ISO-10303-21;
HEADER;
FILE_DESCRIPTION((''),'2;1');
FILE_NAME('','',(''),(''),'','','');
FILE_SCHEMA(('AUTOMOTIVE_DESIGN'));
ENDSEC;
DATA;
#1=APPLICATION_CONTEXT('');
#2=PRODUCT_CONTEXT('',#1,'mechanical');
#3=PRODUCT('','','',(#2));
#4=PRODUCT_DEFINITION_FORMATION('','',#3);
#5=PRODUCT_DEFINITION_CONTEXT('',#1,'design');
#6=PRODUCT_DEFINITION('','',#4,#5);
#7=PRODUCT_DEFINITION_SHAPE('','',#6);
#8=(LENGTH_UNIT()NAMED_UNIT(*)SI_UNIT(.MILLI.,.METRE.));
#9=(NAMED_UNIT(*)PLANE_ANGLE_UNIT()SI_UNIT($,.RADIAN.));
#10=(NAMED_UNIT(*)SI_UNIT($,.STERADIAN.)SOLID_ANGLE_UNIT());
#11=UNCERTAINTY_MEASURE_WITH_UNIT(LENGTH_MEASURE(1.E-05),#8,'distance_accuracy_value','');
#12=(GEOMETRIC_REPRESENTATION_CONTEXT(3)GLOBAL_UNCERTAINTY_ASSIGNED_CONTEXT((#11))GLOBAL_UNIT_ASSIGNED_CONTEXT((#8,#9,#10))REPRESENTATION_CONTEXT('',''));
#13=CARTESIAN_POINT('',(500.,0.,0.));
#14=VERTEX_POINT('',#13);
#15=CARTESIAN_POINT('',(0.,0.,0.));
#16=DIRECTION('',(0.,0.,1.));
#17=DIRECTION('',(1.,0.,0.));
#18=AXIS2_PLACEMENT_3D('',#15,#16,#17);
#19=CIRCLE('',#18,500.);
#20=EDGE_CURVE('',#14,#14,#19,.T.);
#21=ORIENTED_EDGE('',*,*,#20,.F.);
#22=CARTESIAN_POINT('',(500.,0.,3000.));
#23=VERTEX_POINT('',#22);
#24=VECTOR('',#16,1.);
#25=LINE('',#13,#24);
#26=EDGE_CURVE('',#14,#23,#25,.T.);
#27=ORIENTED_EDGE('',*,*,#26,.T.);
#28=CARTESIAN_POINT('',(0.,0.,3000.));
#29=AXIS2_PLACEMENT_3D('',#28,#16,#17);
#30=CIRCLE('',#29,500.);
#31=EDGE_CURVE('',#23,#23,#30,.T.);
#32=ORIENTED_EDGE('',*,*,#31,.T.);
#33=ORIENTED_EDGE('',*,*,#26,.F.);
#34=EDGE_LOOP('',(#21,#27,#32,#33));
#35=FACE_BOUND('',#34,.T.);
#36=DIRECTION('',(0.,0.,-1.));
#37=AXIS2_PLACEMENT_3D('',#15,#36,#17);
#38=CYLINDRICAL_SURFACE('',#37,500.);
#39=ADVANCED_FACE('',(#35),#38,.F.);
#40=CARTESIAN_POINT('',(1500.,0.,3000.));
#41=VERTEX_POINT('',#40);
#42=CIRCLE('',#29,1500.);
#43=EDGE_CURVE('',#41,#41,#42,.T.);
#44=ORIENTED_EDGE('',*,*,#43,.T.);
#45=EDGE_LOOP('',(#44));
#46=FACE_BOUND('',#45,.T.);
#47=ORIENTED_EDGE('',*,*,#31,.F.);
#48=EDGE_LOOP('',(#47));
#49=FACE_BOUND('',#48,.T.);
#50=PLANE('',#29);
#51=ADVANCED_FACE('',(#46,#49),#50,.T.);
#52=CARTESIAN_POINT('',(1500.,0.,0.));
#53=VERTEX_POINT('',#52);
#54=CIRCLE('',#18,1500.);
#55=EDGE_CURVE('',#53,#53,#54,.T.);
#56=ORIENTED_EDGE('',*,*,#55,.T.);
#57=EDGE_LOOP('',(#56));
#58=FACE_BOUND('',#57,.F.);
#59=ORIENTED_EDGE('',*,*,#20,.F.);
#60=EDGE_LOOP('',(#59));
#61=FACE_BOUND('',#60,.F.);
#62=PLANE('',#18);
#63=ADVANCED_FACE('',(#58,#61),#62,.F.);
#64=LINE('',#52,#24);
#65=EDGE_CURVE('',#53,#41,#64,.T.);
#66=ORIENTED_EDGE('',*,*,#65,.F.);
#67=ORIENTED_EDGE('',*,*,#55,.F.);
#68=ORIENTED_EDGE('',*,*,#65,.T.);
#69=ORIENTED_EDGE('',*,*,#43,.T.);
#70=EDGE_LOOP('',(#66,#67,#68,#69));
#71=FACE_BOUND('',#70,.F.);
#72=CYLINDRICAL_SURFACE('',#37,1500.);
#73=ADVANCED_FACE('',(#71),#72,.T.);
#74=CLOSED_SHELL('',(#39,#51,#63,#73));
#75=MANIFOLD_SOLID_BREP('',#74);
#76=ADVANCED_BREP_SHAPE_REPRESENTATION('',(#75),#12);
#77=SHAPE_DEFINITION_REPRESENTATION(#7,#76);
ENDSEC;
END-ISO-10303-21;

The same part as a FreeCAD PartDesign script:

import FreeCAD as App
import Part
import Sketcher
from FreeCAD import Vector

doc = App.newDocument("Part")
body = doc.addObject("PartDesign::Body", "Body")

sketch1 = body.newObject("Sketcher::SketchObject", "Sketch")
sketch1.AttachmentSupport = (doc.getObject("XY_Plane"), [""])
sketch1.MapMode = "FlatFace"
sketch1.addGeometry([
    Part.Circle(Vector(0, 0, 0), Vector(0, 0, 1), 1500),
    Part.Circle(Vector(0, 0, 0), Vector(0, 0, 1), 500),
], False)
sketch1.addConstraint([
    Sketcher.Constraint("Coincident", 0, 3, -1, 1),
    Sketcher.Constraint("Coincident", 1, 3, -1, 1),
    Sketcher.Constraint("Diameter", 0, 3000.0),
    Sketcher.Constraint("Diameter", 1, 1000.0),
])
pad1 = body.newObject("PartDesign::Pad", "Pad")
pad1.Profile = sketch1
pad1.Length = 3000

doc.recompute()
